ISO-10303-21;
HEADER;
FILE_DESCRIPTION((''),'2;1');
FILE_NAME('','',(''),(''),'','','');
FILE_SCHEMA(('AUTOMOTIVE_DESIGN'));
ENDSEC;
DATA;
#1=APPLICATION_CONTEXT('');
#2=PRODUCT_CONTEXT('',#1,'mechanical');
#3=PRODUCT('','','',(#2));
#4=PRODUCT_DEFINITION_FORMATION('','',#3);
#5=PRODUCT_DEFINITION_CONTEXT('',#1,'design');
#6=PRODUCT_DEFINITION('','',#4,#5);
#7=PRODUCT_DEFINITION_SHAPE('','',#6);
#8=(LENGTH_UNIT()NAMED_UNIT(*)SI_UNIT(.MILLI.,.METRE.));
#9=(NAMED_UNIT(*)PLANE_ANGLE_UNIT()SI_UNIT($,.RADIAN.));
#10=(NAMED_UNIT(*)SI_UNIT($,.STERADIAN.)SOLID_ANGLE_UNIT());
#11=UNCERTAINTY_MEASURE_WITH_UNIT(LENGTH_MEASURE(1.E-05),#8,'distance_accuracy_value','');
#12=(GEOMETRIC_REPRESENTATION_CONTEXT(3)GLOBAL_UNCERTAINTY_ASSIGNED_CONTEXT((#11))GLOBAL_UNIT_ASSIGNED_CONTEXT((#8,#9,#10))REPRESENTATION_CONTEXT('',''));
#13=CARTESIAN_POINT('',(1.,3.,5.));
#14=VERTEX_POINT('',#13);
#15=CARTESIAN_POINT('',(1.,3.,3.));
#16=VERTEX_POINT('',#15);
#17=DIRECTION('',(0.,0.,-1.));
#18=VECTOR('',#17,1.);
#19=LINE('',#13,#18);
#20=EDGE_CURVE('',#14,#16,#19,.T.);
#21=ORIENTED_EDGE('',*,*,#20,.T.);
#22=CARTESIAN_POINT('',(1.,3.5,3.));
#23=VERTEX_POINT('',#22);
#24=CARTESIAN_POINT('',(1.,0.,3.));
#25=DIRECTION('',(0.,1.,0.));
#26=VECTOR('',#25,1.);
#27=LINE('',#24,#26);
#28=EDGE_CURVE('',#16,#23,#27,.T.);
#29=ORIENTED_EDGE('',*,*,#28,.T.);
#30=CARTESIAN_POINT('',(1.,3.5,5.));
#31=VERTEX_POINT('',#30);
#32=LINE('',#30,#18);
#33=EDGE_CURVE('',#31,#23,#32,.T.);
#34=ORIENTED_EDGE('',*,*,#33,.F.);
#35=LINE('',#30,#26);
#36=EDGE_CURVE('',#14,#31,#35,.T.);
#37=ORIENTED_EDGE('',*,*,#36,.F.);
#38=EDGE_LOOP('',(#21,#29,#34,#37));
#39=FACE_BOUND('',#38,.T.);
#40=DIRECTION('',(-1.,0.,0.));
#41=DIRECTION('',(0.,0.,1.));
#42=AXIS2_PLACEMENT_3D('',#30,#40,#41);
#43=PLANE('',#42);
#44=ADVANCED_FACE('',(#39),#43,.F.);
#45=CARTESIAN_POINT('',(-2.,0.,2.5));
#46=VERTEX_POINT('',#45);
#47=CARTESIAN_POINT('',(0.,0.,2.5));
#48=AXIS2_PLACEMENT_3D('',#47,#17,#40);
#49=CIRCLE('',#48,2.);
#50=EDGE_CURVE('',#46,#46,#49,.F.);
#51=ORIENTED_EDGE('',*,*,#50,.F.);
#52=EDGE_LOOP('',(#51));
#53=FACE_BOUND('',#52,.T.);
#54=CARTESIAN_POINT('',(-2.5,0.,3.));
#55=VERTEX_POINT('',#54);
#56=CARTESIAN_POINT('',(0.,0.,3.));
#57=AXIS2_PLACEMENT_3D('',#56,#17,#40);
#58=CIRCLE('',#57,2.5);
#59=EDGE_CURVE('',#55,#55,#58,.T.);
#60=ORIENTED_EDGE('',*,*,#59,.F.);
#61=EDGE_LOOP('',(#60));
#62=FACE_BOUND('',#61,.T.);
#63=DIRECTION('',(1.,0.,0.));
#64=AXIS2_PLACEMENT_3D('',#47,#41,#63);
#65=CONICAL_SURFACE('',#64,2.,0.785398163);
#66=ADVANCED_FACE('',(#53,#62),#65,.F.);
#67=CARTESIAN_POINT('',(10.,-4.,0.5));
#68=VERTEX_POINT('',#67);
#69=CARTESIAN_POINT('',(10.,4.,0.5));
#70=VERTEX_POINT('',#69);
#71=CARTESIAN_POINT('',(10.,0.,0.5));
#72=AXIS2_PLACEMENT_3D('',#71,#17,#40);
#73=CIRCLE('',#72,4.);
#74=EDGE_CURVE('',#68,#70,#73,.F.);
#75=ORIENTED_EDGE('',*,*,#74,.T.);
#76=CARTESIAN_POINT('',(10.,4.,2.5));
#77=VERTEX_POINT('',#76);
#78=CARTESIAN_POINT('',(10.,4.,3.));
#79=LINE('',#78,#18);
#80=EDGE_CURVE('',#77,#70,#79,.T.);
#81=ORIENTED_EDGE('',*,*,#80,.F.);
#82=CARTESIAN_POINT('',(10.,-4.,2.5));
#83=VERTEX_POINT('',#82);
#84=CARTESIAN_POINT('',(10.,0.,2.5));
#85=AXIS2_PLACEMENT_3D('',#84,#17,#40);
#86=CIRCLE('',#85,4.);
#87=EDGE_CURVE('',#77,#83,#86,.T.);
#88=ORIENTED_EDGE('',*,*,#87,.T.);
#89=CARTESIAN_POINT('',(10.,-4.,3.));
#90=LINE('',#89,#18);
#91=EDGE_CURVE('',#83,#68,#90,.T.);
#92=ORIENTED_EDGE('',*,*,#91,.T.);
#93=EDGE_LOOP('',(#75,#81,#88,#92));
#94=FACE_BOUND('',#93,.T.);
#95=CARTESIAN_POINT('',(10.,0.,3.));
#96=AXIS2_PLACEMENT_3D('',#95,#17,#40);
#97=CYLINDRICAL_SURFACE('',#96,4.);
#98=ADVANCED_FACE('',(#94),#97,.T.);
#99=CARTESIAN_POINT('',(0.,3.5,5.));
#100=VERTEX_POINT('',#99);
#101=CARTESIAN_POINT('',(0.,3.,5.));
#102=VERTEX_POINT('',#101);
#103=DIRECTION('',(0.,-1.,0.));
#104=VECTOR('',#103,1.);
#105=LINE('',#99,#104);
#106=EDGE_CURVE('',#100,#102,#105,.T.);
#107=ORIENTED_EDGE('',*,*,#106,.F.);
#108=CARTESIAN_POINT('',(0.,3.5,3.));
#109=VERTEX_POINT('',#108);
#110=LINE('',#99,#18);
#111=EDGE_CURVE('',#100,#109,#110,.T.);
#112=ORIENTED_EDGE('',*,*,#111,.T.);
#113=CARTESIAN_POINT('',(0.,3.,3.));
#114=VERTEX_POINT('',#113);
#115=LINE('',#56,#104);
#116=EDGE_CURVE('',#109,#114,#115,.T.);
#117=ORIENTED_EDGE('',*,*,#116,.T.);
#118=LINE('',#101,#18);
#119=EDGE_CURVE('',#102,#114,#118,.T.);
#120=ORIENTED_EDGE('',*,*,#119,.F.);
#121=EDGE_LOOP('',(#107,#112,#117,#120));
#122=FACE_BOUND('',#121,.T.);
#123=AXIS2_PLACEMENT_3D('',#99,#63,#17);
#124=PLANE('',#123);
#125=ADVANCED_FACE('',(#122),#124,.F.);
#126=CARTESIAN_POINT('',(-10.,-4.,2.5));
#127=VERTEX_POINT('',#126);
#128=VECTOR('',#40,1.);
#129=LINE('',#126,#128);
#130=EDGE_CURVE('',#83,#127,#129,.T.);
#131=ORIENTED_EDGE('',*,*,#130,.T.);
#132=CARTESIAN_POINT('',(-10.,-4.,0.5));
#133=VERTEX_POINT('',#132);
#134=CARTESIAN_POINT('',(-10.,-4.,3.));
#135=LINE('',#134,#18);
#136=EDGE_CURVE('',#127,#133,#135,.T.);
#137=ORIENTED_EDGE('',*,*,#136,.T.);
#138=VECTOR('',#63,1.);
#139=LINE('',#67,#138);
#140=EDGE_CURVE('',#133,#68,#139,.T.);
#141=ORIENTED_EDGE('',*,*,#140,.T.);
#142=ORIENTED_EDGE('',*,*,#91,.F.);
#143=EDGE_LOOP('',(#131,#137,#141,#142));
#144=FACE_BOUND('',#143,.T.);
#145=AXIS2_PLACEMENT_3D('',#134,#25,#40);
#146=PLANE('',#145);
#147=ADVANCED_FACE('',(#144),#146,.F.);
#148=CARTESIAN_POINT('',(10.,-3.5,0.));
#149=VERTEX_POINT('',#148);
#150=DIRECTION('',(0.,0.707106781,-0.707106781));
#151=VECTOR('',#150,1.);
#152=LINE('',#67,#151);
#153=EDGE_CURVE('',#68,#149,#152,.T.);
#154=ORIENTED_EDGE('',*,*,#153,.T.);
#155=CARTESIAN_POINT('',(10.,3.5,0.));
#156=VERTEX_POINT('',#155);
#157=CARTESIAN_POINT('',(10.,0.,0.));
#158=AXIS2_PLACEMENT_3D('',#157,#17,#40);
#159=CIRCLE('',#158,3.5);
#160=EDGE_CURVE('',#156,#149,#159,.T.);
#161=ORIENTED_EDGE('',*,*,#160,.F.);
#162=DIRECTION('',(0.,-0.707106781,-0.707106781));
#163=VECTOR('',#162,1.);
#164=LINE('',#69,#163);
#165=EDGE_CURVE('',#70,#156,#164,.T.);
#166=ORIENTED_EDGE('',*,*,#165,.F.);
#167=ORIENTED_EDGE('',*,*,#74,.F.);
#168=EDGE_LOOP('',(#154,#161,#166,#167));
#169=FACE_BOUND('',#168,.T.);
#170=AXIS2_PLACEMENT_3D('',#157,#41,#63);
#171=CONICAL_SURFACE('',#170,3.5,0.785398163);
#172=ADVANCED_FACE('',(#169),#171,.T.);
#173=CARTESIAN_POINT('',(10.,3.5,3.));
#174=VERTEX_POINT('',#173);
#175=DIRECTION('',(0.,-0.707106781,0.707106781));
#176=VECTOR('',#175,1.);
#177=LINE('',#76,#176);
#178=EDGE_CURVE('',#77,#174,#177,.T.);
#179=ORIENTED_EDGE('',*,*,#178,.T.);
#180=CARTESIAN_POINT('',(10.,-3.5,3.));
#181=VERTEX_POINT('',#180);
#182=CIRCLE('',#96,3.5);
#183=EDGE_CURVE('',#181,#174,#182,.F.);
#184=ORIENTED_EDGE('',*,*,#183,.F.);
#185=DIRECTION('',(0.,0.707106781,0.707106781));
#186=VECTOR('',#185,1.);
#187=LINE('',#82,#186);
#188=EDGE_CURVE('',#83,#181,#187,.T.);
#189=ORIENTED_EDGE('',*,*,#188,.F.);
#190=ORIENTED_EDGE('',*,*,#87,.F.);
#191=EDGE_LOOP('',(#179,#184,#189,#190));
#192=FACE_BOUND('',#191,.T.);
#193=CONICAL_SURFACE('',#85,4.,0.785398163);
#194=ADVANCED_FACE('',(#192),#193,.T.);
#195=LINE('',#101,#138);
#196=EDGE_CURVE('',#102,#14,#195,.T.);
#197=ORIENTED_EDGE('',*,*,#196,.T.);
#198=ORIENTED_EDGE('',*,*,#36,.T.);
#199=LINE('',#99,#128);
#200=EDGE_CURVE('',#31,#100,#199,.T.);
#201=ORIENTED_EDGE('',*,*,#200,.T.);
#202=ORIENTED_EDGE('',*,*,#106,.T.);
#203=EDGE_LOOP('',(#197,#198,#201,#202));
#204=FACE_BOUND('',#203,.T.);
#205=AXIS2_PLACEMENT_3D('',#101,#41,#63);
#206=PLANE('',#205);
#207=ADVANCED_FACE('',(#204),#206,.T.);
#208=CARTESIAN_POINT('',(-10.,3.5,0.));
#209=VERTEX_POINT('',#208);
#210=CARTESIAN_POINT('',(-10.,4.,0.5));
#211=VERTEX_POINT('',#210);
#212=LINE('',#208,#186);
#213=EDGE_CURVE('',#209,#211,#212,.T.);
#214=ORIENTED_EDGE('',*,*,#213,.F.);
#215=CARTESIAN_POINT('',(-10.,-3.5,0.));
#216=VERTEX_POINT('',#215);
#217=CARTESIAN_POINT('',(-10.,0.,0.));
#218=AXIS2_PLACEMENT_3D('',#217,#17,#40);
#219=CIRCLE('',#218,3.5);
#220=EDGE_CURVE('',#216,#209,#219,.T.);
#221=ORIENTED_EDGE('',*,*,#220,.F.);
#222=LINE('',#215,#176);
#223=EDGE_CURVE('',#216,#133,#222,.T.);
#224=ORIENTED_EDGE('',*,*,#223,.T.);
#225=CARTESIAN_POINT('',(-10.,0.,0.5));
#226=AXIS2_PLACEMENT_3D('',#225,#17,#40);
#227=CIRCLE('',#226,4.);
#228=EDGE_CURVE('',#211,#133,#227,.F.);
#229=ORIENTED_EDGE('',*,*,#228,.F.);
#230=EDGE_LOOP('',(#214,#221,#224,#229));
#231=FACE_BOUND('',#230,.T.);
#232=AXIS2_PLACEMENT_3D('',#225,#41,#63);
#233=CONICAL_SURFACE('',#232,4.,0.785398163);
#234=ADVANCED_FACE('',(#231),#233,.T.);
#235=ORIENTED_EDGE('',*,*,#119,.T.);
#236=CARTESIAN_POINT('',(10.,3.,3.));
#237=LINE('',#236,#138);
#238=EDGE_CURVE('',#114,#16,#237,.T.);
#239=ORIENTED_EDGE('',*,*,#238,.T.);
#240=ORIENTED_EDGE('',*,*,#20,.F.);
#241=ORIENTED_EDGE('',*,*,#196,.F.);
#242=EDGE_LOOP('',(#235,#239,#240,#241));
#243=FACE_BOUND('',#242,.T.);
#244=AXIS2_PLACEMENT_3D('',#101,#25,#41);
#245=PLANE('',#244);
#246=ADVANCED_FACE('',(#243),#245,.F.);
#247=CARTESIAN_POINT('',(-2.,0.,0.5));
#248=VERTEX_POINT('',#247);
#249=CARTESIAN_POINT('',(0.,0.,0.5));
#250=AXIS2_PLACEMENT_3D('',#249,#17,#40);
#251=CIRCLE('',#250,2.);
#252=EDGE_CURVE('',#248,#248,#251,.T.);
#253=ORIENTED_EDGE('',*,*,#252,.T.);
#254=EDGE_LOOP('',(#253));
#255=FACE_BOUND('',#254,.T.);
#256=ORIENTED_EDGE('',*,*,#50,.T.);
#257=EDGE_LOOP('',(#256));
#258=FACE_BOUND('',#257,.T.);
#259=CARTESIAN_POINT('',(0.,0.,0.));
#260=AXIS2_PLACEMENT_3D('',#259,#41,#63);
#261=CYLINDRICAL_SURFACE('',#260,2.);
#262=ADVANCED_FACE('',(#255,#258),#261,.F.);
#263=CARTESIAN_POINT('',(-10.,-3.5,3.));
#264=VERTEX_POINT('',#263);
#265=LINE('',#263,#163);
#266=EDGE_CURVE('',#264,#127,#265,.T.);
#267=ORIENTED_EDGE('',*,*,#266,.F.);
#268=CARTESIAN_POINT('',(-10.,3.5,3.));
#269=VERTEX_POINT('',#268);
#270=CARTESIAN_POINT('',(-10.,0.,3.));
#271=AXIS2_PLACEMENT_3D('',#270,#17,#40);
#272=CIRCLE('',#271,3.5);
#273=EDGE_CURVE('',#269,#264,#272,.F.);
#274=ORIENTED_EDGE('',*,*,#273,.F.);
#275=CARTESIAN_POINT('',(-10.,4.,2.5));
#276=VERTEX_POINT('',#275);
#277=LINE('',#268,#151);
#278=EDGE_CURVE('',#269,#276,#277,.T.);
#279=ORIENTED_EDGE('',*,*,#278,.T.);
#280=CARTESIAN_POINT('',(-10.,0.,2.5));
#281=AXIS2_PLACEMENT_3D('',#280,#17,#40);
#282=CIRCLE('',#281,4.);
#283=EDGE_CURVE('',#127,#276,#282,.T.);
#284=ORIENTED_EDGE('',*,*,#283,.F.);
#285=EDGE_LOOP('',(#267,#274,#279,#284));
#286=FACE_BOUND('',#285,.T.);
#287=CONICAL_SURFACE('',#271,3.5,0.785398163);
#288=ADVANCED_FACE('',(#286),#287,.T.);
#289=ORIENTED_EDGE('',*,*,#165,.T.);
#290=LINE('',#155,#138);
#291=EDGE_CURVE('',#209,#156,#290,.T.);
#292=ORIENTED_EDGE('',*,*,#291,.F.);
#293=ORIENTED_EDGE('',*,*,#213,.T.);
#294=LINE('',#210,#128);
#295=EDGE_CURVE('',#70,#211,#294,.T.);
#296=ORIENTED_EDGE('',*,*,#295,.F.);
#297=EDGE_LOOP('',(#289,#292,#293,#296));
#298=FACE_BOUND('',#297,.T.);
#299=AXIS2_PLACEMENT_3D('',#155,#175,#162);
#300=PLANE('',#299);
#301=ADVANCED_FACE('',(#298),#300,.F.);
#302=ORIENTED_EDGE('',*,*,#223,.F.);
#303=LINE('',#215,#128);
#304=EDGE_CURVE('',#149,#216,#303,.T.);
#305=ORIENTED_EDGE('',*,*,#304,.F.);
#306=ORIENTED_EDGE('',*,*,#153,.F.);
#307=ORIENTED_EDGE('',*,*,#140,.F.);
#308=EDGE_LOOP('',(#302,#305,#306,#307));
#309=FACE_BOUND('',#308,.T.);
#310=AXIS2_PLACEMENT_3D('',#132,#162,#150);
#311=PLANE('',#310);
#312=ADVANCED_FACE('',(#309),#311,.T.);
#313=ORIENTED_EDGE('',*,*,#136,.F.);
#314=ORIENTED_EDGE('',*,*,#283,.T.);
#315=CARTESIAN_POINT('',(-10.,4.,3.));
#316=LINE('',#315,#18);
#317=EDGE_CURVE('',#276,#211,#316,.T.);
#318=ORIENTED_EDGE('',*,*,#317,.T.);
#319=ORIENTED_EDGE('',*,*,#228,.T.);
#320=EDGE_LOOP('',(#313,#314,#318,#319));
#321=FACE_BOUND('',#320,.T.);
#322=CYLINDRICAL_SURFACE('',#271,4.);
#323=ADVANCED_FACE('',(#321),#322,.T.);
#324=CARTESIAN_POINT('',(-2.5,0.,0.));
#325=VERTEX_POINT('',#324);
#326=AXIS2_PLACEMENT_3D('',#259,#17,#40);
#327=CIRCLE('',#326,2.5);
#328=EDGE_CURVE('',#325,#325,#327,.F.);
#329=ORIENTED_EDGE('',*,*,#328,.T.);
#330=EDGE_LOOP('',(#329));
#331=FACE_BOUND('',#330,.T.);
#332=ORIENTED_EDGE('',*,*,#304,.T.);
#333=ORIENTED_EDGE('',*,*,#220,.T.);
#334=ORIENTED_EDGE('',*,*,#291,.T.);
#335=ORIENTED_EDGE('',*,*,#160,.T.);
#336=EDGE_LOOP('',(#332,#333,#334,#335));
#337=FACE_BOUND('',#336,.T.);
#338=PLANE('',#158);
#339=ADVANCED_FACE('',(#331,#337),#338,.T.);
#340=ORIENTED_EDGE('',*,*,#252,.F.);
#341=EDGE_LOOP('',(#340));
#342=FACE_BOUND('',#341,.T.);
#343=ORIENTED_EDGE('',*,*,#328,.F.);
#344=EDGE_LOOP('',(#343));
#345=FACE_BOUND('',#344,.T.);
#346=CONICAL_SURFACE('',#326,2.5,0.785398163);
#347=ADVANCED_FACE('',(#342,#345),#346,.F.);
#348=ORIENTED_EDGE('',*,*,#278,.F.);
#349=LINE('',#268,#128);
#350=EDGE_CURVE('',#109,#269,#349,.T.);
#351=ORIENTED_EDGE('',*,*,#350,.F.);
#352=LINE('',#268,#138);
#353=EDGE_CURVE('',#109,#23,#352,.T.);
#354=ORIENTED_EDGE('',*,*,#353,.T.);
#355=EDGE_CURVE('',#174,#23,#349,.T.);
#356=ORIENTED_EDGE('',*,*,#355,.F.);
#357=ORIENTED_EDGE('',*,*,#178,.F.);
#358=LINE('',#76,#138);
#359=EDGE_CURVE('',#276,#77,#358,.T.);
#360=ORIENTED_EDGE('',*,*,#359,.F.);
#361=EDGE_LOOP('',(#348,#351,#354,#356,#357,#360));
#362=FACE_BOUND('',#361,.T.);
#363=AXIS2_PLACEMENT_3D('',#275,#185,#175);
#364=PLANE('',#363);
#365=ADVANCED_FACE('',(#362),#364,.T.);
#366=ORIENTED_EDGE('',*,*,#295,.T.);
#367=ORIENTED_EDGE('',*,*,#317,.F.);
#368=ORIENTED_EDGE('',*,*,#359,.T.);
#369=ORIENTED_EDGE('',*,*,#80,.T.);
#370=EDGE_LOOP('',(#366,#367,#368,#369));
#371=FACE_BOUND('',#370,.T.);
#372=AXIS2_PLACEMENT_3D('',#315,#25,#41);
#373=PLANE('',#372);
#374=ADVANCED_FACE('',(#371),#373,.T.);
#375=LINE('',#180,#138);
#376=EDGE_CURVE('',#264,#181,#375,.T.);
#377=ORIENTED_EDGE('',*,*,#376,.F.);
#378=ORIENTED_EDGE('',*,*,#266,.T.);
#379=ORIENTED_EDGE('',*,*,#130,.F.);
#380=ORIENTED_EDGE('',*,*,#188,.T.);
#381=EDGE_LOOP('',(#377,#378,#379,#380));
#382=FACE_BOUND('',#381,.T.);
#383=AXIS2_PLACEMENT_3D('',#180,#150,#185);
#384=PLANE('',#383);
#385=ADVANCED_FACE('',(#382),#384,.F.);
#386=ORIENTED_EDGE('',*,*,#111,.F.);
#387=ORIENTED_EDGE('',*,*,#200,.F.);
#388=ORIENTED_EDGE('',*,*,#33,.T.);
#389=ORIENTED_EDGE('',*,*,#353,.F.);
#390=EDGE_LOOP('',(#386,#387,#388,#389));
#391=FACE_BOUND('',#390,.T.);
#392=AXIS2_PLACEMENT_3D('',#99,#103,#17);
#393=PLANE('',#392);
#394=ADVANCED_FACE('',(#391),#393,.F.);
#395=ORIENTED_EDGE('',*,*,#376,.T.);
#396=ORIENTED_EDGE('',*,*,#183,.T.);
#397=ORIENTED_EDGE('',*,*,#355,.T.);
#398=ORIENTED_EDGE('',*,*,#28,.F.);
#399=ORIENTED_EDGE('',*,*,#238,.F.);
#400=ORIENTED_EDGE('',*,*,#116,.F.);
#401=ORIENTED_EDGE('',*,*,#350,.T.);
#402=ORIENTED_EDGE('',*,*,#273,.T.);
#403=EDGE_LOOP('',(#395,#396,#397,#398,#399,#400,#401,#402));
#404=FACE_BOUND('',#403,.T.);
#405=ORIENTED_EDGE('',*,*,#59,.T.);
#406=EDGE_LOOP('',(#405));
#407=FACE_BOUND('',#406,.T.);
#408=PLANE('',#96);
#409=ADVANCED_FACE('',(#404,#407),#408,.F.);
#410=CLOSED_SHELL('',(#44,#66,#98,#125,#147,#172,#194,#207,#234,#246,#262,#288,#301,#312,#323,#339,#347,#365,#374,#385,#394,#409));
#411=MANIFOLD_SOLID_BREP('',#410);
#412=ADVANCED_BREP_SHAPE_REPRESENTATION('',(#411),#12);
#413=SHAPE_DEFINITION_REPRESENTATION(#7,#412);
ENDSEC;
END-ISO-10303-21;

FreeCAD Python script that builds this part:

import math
import FreeCAD as App
import Part
import Sketcher
Q = App.Units.Quantity


def edges_at(feature, points):
    """Names of the edges that pass closest to the given points."""
    edges = feature.Shape.Edges
    near = lambda p: min(range(len(edges)), key=lambda i: edges[i].distToShape(Part.Vertex(*p))[0])
    return sorted({f"Edge{near(p) + 1}" for p in points})

doc = App.newDocument("Part")
body = doc.addObject("PartDesign::Body", "Body")

# Sketch on XY plane
sketch1 = body.newObject("Sketcher::SketchObject", "Sketch")
sketch1.AttachmentSupport = (doc.getObject("XY_Plane"), [""])
sketch1.MapMode = "FlatFace"
sketch1.addGeometry(Part.LineSegment(App.Vector(10, 4, 0), App.Vector(-10, 4, 0)), False)
sketch1.addGeometry(Part.ArcOfCircle(Part.Circle(App.Vector(-10, 0, 0), App.Vector(0, 0, 1), 4), math.radians(90), math.radians(270)), False)
sketch1.addGeometry(Part.LineSegment(App.Vector(-10, -4, 0), App.Vector(10, -4, 0)), False)
sketch1.addGeometry(Part.ArcOfCircle(Part.Circle(App.Vector(10, 0, 0), App.Vector(0, 0, 1), 4), math.radians(-90), math.radians(90)), False)
sketch1.addConstraint(Sketcher.Constraint("Tangent", 0, 2, 1, 1))
sketch1.addConstraint(Sketcher.Constraint("Tangent", 1, 2, 2, 1))
sketch1.addConstraint(Sketcher.Constraint("Tangent", 2, 2, 3, 1))
sketch1.addConstraint(Sketcher.Constraint("Tangent", 3, 2, 0, 1))
sketch1.addConstraint(Sketcher.Constraint("Horizontal", 0))
sketch1.addConstraint(Sketcher.Constraint("Horizontal", 2))
sketch1.addConstraint(Sketcher.Constraint("Symmetric", 1, 3, 3, 3, -1, 1))
sketch1.addConstraint(Sketcher.Constraint("Radius", 1, Q("4 mm")))
sketch1.addConstraint(Sketcher.Constraint("DistanceX", 0, 2, 0, 1, Q("20 mm")))
pad1 = body.newObject("PartDesign::Pad", "Pad")
pad1.Profile = sketch1
pad1.Length = 3

# Sketch on XY plane
sketch2 = body.newObject("Sketcher::SketchObject", "Sketch001")
sketch2.AttachmentSupport = (doc.getObject("XY_Plane"), [""])
sketch2.MapMode = "FlatFace"
sketch2.AttachmentOffset = App.Placement(App.Vector(0, 0, 3), App.Rotation())
sketch2.addGeometry(Part.Circle(App.Vector(0, 0, 0), App.Vector(0, 0, 1), 2), False)
sketch2.addConstraint(Sketcher.Constraint("Coincident", 0, 3, -1, 1))
sketch2.addConstraint(Sketcher.Constraint("Diameter", 0, Q("4 mm")))
pocket1 = body.newObject("PartDesign::Pocket", "Pocket")
pocket1.Profile = sketch2
pocket1.Length = 3
doc.recompute()

chamfer = body.newObject("PartDesign::Chamfer", "Chamfer")
chamfer.Base = (pocket1, edges_at(pocket1, [
    (0, -4, 0),
    (0, -4, 3),
    (14, 0, 0),
    (14, 0, 3),
    (-14, 0, 0),
    (-14, 0, 3),
    (0, 4, 0),
    (2, 0, 0),
    (0, 4, 3),
    (2, 0, 3),
]))
chamfer.Size = 0.5

# Sketch on XY plane
sketch3 = body.newObject("Sketcher::SketchObject", "Sketch002")
sketch3.AttachmentSupport = (doc.getObject("XY_Plane"), [""])
sketch3.MapMode = "FlatFace"
sketch3.addGeometry(Part.LineSegment(App.Vector(0, 3.5, 0), App.Vector(0, 3, 0)), False)
sketch3.addGeometry(Part.LineSegment(App.Vector(0, 3, 0), App.Vector(1, 3, 0)), False)
sketch3.addGeometry(Part.LineSegment(App.Vector(1, 3, 0), App.Vector(1, 3.5, 0)), False)
sketch3.addGeometry(Part.LineSegment(App.Vector(1, 3.5, 0), App.Vector(0, 3.5, 0)), False)
sketch3.addConstraint(Sketcher.Constraint("Coincident", 0, 2, 1, 1))
sketch3.addConstraint(Sketcher.Constraint("Coincident", 1, 2, 2, 1))
sketch3.addConstraint(Sketcher.Constraint("Coincident", 2, 2, 3, 1))
sketch3.addConstraint(Sketcher.Constraint("Coincident", 3, 2, 0, 1))
sketch3.addConstraint(Sketcher.Constraint("Vertical", 0))
sketch3.addConstraint(Sketcher.Constraint("Horizontal", 1))
sketch3.addConstraint(Sketcher.Constraint("Vertical", 2))
sketch3.addConstraint(Sketcher.Constraint("Horizontal", 3))
sketch3.addConstraint(Sketcher.Constraint("PointOnObject", 0, 2, -2))
sketch3.addConstraint(Sketcher.Constraint("DistanceX", 1, 1, 1, 2, Q("1 mm")))
sketch3.addConstraint(Sketcher.Constraint("DistanceY", 0, 2, 0, 1, Q("0.5 mm")))
sketch3.addConstraint(Sketcher.Constraint("DistanceY", -1, 1, 0, 2, Q("3 mm")))
pad2 = body.newObject("PartDesign::Pad", "Pad001")
pad2.Profile = sketch3
pad2.Length = 5

doc.recompute()
